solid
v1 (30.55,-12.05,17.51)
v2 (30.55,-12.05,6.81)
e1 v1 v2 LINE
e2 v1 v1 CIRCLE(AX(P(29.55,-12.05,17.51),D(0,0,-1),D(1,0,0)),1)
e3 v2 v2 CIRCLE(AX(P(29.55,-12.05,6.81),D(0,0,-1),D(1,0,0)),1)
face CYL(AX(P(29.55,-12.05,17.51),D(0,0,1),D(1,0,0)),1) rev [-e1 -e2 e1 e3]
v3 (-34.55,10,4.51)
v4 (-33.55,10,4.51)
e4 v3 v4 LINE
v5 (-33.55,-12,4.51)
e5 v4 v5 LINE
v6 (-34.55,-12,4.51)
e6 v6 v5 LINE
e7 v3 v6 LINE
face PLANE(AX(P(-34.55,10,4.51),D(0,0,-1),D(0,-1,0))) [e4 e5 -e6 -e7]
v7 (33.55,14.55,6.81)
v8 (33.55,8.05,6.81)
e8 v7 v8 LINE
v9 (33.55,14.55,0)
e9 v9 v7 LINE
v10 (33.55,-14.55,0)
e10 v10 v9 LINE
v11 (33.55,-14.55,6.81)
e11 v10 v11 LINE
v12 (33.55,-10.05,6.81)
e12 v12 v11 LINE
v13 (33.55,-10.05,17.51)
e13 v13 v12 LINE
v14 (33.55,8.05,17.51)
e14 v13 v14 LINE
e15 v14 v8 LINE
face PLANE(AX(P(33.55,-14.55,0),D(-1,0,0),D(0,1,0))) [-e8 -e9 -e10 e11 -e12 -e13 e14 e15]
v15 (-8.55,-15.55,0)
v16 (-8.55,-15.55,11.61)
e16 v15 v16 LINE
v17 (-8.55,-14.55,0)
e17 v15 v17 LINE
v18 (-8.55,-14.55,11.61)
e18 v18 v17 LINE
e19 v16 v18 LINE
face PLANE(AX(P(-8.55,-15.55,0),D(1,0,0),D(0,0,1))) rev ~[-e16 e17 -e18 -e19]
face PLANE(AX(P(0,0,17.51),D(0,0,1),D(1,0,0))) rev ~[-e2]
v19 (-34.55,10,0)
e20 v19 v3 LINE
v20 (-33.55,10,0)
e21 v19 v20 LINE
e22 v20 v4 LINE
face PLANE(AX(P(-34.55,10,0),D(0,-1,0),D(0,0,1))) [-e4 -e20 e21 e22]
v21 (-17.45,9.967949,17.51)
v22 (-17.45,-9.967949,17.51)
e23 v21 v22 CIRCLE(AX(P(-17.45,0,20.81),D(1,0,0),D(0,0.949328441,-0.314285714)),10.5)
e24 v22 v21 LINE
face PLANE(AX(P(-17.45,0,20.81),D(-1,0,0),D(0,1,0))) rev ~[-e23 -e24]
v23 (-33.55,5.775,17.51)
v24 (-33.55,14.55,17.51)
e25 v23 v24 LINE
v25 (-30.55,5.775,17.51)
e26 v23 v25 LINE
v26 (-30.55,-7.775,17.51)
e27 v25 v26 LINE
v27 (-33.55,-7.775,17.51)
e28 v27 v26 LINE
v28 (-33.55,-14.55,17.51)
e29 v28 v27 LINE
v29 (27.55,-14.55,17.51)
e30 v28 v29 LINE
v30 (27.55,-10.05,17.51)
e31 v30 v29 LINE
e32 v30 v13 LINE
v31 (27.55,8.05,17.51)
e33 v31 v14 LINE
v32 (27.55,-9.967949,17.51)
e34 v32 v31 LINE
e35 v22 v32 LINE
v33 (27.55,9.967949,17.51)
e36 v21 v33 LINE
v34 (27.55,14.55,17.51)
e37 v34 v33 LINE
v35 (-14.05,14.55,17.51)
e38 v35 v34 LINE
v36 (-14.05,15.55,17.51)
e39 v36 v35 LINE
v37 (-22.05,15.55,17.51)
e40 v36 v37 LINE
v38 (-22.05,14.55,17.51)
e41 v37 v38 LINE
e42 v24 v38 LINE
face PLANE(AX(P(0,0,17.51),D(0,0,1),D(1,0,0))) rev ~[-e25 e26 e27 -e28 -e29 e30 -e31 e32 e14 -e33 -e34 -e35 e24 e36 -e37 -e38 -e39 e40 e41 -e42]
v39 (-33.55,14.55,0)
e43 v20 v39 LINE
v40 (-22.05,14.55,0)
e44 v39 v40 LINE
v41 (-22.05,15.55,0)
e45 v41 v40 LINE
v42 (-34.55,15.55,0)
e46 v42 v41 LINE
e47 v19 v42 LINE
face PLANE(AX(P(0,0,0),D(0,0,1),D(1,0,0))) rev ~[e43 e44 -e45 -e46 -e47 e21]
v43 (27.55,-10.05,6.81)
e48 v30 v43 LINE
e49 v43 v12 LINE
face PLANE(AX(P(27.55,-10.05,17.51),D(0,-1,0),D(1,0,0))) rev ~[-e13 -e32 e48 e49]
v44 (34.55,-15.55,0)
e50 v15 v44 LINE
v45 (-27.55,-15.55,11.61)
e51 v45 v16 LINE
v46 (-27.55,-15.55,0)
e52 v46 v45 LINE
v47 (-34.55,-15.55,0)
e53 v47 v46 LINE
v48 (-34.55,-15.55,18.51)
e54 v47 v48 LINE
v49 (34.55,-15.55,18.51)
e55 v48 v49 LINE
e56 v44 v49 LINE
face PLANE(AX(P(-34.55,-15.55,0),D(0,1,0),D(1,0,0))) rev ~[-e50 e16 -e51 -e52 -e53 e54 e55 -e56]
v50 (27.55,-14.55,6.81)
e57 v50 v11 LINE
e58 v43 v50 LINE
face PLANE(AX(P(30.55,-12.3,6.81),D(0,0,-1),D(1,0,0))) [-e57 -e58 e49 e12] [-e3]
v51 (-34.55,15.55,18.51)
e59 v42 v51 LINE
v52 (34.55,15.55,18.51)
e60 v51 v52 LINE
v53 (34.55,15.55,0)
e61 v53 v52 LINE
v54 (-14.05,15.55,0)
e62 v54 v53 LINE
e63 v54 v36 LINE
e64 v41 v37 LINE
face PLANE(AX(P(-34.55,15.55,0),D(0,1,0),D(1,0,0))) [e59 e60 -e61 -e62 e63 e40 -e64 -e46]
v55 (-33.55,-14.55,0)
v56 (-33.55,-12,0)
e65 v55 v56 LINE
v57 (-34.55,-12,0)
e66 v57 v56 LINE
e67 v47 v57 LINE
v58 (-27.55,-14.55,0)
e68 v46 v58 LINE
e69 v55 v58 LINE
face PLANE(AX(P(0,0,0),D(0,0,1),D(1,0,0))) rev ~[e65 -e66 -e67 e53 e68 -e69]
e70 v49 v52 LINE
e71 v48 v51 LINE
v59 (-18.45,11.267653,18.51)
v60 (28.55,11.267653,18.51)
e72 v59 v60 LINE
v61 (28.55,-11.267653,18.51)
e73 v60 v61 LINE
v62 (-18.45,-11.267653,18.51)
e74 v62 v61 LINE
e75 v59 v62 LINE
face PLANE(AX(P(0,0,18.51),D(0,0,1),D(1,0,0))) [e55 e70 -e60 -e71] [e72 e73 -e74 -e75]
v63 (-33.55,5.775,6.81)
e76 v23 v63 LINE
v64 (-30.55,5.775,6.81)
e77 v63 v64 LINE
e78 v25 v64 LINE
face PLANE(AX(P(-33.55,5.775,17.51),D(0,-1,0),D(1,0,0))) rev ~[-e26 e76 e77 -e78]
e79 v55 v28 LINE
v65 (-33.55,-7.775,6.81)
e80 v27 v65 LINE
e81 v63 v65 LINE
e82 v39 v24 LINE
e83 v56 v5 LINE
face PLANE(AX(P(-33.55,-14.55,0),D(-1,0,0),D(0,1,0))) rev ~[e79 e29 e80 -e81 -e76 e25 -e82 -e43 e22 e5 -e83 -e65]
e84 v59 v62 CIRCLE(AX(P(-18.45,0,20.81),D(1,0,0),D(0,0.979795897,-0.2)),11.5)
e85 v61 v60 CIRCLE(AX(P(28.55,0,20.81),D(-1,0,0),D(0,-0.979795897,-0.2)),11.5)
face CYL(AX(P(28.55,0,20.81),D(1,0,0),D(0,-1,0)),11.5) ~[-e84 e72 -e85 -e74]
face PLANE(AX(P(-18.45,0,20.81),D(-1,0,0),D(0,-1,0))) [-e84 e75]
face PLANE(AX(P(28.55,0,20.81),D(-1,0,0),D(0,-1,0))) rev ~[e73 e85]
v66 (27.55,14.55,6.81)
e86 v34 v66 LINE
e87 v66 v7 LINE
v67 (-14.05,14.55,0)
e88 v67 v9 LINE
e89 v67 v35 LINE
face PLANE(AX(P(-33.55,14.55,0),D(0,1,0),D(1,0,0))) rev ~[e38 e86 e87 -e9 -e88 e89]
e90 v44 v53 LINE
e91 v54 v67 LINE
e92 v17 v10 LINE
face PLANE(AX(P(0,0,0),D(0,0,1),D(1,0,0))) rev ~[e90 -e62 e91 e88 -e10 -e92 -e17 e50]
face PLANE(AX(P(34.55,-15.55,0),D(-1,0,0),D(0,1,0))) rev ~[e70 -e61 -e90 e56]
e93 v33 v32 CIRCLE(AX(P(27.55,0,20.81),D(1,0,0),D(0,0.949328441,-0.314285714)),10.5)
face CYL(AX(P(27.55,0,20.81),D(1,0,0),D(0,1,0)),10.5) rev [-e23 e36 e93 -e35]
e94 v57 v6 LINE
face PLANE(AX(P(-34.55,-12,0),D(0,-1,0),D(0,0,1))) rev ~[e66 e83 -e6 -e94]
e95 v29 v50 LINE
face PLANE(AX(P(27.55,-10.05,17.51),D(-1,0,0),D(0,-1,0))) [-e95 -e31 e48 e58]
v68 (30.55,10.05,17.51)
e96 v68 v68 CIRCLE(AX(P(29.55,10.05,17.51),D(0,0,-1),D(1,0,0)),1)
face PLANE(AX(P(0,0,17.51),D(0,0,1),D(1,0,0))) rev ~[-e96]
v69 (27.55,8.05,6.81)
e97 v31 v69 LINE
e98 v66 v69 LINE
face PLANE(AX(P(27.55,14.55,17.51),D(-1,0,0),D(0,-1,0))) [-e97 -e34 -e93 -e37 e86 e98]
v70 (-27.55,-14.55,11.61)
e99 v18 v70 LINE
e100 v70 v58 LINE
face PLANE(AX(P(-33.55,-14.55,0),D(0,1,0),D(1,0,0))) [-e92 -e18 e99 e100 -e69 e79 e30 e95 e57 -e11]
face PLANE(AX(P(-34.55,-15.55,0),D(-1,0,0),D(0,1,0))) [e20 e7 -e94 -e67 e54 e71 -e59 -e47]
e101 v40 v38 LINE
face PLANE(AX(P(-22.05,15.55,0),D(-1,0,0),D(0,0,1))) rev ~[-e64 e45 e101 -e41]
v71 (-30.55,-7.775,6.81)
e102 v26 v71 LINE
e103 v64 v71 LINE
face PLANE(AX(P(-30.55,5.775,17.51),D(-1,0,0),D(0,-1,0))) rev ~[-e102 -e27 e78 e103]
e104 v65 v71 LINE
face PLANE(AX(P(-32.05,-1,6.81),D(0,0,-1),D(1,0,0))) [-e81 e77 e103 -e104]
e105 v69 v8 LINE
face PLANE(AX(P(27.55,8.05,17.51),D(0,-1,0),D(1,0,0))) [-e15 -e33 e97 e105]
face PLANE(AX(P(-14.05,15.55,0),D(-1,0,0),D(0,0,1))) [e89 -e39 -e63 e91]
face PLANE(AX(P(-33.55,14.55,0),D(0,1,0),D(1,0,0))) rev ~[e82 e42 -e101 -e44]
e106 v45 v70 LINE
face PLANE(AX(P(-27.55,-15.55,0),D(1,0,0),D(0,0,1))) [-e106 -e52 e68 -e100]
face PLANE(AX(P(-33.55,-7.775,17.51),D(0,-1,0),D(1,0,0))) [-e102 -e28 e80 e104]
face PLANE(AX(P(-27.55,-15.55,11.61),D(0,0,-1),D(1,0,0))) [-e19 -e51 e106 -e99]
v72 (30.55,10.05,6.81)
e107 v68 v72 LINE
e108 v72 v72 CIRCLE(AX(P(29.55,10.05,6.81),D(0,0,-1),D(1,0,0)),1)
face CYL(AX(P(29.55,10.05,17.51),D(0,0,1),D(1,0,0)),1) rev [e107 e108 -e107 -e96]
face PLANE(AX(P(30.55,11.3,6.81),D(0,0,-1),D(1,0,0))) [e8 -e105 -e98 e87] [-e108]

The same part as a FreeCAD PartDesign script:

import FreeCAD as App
import Part
import Sketcher
Q = App.Units.Quantity


def add_polygon(sketch, points):
    """Adds a closed chain of lines whose ends are joined by coincident constraints."""
    first, n = sketch.GeometryCount, len(points)
    for a, b in zip(points, points[1:] + points[:1]):
        sketch.addGeometry(Part.LineSegment(App.Vector(*a, 0), App.Vector(*b, 0)), False)
    for i in range(n):
        sketch.addConstraint(Sketcher.Constraint("Coincident", first + i, 2, first + (i + 1) % n, 1))

doc = App.newDocument("Part")
body = doc.addObject("PartDesign::Body", "Body")

# Sketch on XY plane
sketch1 = body.newObject("Sketcher::SketchObject", "Sketch")
sketch1.AttachmentSupport = (doc.getObject("XY_Plane"), [""])
sketch1.MapMode = "FlatFace"
add_polygon(sketch1, [(-35, 16), (-35, -16), (35, -16), (35, 16)])  # lines 0-3
sketch1.addConstraint(Sketcher.Constraint("Vertical", 0))
sketch1.addConstraint(Sketcher.Constraint("Horizontal", 1))
sketch1.addConstraint(Sketcher.Constraint("Vertical", 2))
sketch1.addConstraint(Sketcher.Constraint("Horizontal", 3))
sketch1.addConstraint(Sketcher.Constraint("Symmetric", 0, 2, 2, 2, -1, 1))
sketch1.addConstraint(Sketcher.Constraint("DistanceX", 1, 1, 1, 2, Q("69.1 mm")))
sketch1.addConstraint(Sketcher.Constraint("DistanceY", 0, 2, 0, 1, Q("31.1 mm")))
pad1 = body.newObject("PartDesign::Pad", "Pad")
pad1.Profile = sketch1
pad1.Length = 18.51

# Sketch on YZ plane
sketch2 = body.newObject("Sketcher::SketchObject", "Sketch001")
sketch2.AttachmentSupport = (doc.getObject("YZ_Plane"), [""])
sketch2.MapMode = "FlatFace"
sketch2.AttachmentOffset = App.Placement(App.Vector(0, 0, 28.55), App.Rotation())
sketch2.addGeometry(Part.Circle(App.Vector(0, 21, 0), App.Vector(0, 0, 1), 12), False)
sketch2.addConstraint(Sketcher.Constraint("PointOnObject", 0, 3, -2))
sketch2.addConstraint(Sketcher.Constraint("Diameter", 0, Q("23 mm")))
sketch2.addConstraint(Sketcher.Constraint("DistanceY", -1, 1, 0, 3, Q("20.81 mm")))
pad2 = body.newObject("PartDesign::Pad", "Pad001")
pad2.Profile = sketch2
pad2.Length = 47
pad2.Reversed = True

# Sketch on YZ plane
sketch3 = body.newObject("Sketcher::SketchObject", "Sketch002")
sketch3.AttachmentSupport = (doc.getObject("YZ_Plane"), [""])
sketch3.MapMode = "FlatFace"
sketch3.AttachmentOffset = App.Placement(App.Vector(0, 0, 27.55), App.Rotation())
sketch3.addGeometry(Part.Circle(App.Vector(0, 21, 0), App.Vector(0, 0, 1), 10), False)
sketch3.addConstraint(Sketcher.Constraint("PointOnObject", 0, 3, -2))
sketch3.addConstraint(Sketcher.Constraint("Diameter", 0, Q("21 mm")))
sketch3.addConstraint(Sketcher.Constraint("DistanceY", -1, 1, 0, 3, Q("20.81 mm")))
pocket1 = body.newObject("PartDesign::Pocket", "Pocket")
pocket1.Profile = sketch3
pocket1.Length = 45

# Sketch on XY plane
sketch4 = body.newObject("Sketcher::SketchObject", "Sketch003")
sketch4.AttachmentSupport = (doc.getObject("XY_Plane"), [""])
sketch4.MapMode = "FlatFace"
add_polygon(sketch4, [(-34, 15), (-34, -15), (34, -15), (34, 15)])  # lines 0-3
sketch4.addConstraint(Sketcher.Constraint("Vertical", 0))
sketch4.addConstraint(Sketcher.Constraint("Horizontal", 1))
sketch4.addConstraint(Sketcher.Constraint("Vertical", 2))
sketch4.addConstraint(Sketcher.Constraint("Horizontal", 3))
sketch4.addConstraint(Sketcher.Constraint("Symmetric", 0, 2, 2, 2, -1, 1))
sketch4.addConstraint(Sketcher.Constraint("DistanceX", 1, 1, 1, 2, Q("67.1 mm")))
sketch4.addConstraint(Sketcher.Constraint("DistanceY", 0, 2, 0, 1, Q("29.1 mm")))
pocket2 = body.newObject("PartDesign::Pocket", "Pocket001")
pocket2.Profile = sketch4
pocket2.Length = 17.51
pocket2.Reversed = True

# Sketch on XY plane
sketch5 = body.newObject("Sketcher::SketchObject", "Sketch004")
sketch5.AttachmentSupport = (doc.getObject("XY_Plane"), [""])
sketch5.MapMode = "FlatFace"
sketch5.AttachmentOffset = App.Placement(App.Vector(0, 0, 17.51), App.Rotation())
add_polygon(sketch5, [(27.6, -14.6), (27.6, -10.1), (33.5, -10.1), (33.5, -14.6)])  # lines 0-3
sketch5.addGeometry(Part.Circle(App.Vector(29.6, -12.1, 0), App.Vector(0, 0, 1), 1), False)  # 4
add_polygon(sketch5, [(27.6, 8.1), (27.6, 14.6), (33.5, 14.6), (33.5, 8.1)])  # lines 5-8
sketch5.addGeometry(Part.Circle(App.Vector(29.6, 10.1, 0), App.Vector(0, 0, 1), 1), False)  # 9
sketch5.addConstraint(Sketcher.Constraint("Vertical", 0))
sketch5.addConstraint(Sketcher.Constraint("Horizontal", 1))
sketch5.addConstraint(Sketcher.Constraint("Vertical", 2))
sketch5.addConstraint(Sketcher.Constraint("Horizontal", 3))
sketch5.addConstraint(Sketcher.Constraint("Vertical", 5))
sketch5.addConstraint(Sketcher.Constraint("Horizontal", 6))
sketch5.addConstraint(Sketcher.Constraint("Vertical", 7))
sketch5.addConstraint(Sketcher.Constraint("Horizontal", 8))
sketch5.addConstraint(Sketcher.Constraint("Equal", 4, 9))
sketch5.addConstraint(Sketcher.Constraint("Symmetric", 3, 2, 5, 2, -1))
sketch5.addConstraint(Sketcher.Constraint("Vertical", 4, 3, 9, 3))
sketch5.addConstraint(Sketcher.Constraint("Vertical", 2, 2, 6, 2))
sketch5.addConstraint(Sketcher.Constraint("Diameter", 4, Q("2 mm")))
sketch5.addConstraint(Sketcher.Constraint("DistanceX", 1, 1, 1, 2, Q("6 mm")))
sketch5.addConstraint(Sketcher.Constraint("DistanceY", 0, 1, 0, 2, Q("4.5 mm")))
sketch5.addConstraint(Sketcher.Constraint("DistanceY", 5, 1, 5, 2, Q("6.5 mm")))
sketch5.addConstraint(Sketcher.Constraint("DistanceX", 0, 2, 4, 3, Q("2 mm")))
sketch5.addConstraint(Sketcher.Constraint("DistanceY", 4, 3, 0, 2, Q("2 mm")))
sketch5.addConstraint(Sketcher.Constraint("DistanceY", 7, 2, 9, 3, Q("2 mm")))
sketch5.addConstraint(Sketcher.Constraint("DistanceY", 4, 3, 9, 3, Q("22.1 mm")))
sketch5.addConstraint(Sketcher.Constraint("DistanceX", -1, 1, 4, 3, Q("29.55 mm")))
pad3 = body.newObject("PartDesign::Pad", "Pad002")
pad3.Profile = sketch5
pad3.Length = 10.7
pad3.Reversed = True

# Sketch on XZ plane
sketch6 = body.newObject("Sketcher::SketchObject", "Sketch005")
sketch6.AttachmentSupport = (doc.getObject("XZ_Plane"), [""])
sketch6.MapMode = "FlatFace"
sketch6.AttachmentOffset = App.Placement(App.Vector(0, 0, -15.55), App.Rotation())
add_polygon(sketch6, [(-14, 18), (-14, 0), (-22, 0), (-22, 18)])  # lines 0-3
sketch6.addConstraint(Sketcher.Constraint("Vertical", 0))
sketch6.addConstraint(Sketcher.Constraint("Horizontal", 1))
sketch6.addConstraint(Sketcher.Constraint("Vertical", 2))
sketch6.addConstraint(Sketcher.Constraint("Horizontal", 3))
sketch6.addConstraint(Sketcher.Constraint("PointOnObject", 0, 2, -1))
sketch6.addConstraint(Sketcher.Constraint("DistanceX", 1, 2, 1, 1, Q("8 mm")))
sketch6.addConstraint(Sketcher.Constraint("DistanceY", 0, 2, 0, 1, Q("17.51 mm")))
sketch6.addConstraint(Sketcher.Constraint("DistanceX", 0, 2, -1, 1, Q("14.05 mm")))
pocket3 = body.newObject("PartDesign::Pocket", "Pocket002")
pocket3.Profile = sketch6
pocket3.Length = 5
pocket3.Reversed = True

# Sketch on XY plane
sketch7 = body.newObject("Sketcher::SketchObject", "Sketch006")
sketch7.AttachmentSupport = (doc.getObject("XY_Plane"), [""])
sketch7.MapMode = "FlatFace"
sketch7.AttachmentOffset = App.Placement(App.Vector(0, 0, 17.51), App.Rotation())
add_polygon(sketch7, [(-33.5, -7.8), (-33.5, 5.8), (-30.6, 5.8), (-30.6, -7.8)])  # lines 0-3
sketch7.addConstraint(Sketcher.Constraint("Vertical", 0))
sketch7.addConstraint(Sketcher.Constraint("Horizontal", 1))
sketch7.addConstraint(Sketcher.Constraint("Vertical", 2))
sketch7.addConstraint(Sketcher.Constraint("Horizontal", 3))
sketch7.addConstraint(Sketcher.Constraint("DistanceX", 1, 1, 1, 2, Q("3 mm")))
sketch7.addConstraint(Sketcher.Constraint("DistanceY", 0, 1, 0, 2, Q("13.55 mm")))
sketch7.addConstraint(Sketcher.Constraint("DistanceX", 0, 2, -1, 1, Q("33.55 mm")))
sketch7.addConstraint(Sketcher.Constraint("DistanceY", -1, 1, 0, 2, Q("5.775 mm")))
pad4 = body.newObject("PartDesign::Pad", "Pad003")
pad4.Profile = sketch7
pad4.Length = 10.7
pad4.Reversed = True

# Sketch on XZ plane
sketch8 = body.newObject("Sketcher::SketchObject", "Sketch007")
sketch8.AttachmentSupport = (doc.getObject("XZ_Plane"), [""])
sketch8.MapMode = "FlatFace"
sketch8.AttachmentOffset = App.Placement(App.Vector(0, 0, 15.55), App.Rotation())
add_polygon(sketch8, [(-28, 12), (-28, 0), (-9, 0), (-9, 12)])  # lines 0-3
sketch8.addConstraint(Sketcher.Constraint("Vertical", 0))
sketch8.addConstraint(Sketcher.Constraint("Horizontal", 1))
sketch8.addConstraint(Sketcher.Constraint("Vertical", 2))
sketch8.addConstraint(Sketcher.Constraint("Horizontal", 3))
sketch8.addConstraint(Sketcher.Constraint("PointOnObject", 0, 2, -1))
sketch8.addConstraint(Sketcher.Constraint("DistanceX", 1, 1, 1, 2, Q("19 mm")))
sketch8.addConstraint(Sketcher.Constraint("DistanceY", 0, 2, 0, 1, Q("11.61 mm")))
sketch8.addConstraint(Sketcher.Constraint("DistanceX", 0, 2, -1, 1, Q("27.55 mm")))
pocket4 = body.newObject("PartDesign::Pocket", "Pocket003")
pocket4.Profile = sketch8
pocket4.Length = 5

# Sketch on YZ plane
sketch9 = body.newObject("Sketcher::SketchObject", "Sketch008")
sketch9.AttachmentSupport = (doc.getObject("YZ_Plane"), [""])
sketch9.MapMode = "FlatFace"
sketch9.AttachmentOffset = App.Placement(App.Vector(0, 0, -34.55), App.Rotation())
add_polygon(sketch9, [(10, 4.5), (10, 0), (-12, 0), (-12, 4.5)])  # lines 0-3
sketch9.addConstraint(Sketcher.Constraint("Vertical", 0))
sketch9.addConstraint(Sketcher.Constraint("Horizontal", 1))
sketch9.addConstraint(Sketcher.Constraint("Vertical", 2))
sketch9.addConstraint(Sketcher.Constraint("Horizontal", 3))
sketch9.addConstraint(Sketcher.Constraint("PointOnObject", 0, 2, -1))
sketch9.addConstraint(Sketcher.Constraint("DistanceX", 1, 2, 1, 1, Q("22 mm")))
sketch9.addConstraint(Sketcher.Constraint("DistanceX", -1, 1, 0, 2, Q("10 mm")))
sketch9.addConstraint(Sketcher.Constraint("DistanceY", 0, 2, 0, 1, Q("4.51 mm")))
pocket5 = body.newObject("PartDesign::Pocket", "Pocket004")
pocket5.Profile = sketch9
pocket5.Length = 5
pocket5.Reversed = True

doc.recompute()
